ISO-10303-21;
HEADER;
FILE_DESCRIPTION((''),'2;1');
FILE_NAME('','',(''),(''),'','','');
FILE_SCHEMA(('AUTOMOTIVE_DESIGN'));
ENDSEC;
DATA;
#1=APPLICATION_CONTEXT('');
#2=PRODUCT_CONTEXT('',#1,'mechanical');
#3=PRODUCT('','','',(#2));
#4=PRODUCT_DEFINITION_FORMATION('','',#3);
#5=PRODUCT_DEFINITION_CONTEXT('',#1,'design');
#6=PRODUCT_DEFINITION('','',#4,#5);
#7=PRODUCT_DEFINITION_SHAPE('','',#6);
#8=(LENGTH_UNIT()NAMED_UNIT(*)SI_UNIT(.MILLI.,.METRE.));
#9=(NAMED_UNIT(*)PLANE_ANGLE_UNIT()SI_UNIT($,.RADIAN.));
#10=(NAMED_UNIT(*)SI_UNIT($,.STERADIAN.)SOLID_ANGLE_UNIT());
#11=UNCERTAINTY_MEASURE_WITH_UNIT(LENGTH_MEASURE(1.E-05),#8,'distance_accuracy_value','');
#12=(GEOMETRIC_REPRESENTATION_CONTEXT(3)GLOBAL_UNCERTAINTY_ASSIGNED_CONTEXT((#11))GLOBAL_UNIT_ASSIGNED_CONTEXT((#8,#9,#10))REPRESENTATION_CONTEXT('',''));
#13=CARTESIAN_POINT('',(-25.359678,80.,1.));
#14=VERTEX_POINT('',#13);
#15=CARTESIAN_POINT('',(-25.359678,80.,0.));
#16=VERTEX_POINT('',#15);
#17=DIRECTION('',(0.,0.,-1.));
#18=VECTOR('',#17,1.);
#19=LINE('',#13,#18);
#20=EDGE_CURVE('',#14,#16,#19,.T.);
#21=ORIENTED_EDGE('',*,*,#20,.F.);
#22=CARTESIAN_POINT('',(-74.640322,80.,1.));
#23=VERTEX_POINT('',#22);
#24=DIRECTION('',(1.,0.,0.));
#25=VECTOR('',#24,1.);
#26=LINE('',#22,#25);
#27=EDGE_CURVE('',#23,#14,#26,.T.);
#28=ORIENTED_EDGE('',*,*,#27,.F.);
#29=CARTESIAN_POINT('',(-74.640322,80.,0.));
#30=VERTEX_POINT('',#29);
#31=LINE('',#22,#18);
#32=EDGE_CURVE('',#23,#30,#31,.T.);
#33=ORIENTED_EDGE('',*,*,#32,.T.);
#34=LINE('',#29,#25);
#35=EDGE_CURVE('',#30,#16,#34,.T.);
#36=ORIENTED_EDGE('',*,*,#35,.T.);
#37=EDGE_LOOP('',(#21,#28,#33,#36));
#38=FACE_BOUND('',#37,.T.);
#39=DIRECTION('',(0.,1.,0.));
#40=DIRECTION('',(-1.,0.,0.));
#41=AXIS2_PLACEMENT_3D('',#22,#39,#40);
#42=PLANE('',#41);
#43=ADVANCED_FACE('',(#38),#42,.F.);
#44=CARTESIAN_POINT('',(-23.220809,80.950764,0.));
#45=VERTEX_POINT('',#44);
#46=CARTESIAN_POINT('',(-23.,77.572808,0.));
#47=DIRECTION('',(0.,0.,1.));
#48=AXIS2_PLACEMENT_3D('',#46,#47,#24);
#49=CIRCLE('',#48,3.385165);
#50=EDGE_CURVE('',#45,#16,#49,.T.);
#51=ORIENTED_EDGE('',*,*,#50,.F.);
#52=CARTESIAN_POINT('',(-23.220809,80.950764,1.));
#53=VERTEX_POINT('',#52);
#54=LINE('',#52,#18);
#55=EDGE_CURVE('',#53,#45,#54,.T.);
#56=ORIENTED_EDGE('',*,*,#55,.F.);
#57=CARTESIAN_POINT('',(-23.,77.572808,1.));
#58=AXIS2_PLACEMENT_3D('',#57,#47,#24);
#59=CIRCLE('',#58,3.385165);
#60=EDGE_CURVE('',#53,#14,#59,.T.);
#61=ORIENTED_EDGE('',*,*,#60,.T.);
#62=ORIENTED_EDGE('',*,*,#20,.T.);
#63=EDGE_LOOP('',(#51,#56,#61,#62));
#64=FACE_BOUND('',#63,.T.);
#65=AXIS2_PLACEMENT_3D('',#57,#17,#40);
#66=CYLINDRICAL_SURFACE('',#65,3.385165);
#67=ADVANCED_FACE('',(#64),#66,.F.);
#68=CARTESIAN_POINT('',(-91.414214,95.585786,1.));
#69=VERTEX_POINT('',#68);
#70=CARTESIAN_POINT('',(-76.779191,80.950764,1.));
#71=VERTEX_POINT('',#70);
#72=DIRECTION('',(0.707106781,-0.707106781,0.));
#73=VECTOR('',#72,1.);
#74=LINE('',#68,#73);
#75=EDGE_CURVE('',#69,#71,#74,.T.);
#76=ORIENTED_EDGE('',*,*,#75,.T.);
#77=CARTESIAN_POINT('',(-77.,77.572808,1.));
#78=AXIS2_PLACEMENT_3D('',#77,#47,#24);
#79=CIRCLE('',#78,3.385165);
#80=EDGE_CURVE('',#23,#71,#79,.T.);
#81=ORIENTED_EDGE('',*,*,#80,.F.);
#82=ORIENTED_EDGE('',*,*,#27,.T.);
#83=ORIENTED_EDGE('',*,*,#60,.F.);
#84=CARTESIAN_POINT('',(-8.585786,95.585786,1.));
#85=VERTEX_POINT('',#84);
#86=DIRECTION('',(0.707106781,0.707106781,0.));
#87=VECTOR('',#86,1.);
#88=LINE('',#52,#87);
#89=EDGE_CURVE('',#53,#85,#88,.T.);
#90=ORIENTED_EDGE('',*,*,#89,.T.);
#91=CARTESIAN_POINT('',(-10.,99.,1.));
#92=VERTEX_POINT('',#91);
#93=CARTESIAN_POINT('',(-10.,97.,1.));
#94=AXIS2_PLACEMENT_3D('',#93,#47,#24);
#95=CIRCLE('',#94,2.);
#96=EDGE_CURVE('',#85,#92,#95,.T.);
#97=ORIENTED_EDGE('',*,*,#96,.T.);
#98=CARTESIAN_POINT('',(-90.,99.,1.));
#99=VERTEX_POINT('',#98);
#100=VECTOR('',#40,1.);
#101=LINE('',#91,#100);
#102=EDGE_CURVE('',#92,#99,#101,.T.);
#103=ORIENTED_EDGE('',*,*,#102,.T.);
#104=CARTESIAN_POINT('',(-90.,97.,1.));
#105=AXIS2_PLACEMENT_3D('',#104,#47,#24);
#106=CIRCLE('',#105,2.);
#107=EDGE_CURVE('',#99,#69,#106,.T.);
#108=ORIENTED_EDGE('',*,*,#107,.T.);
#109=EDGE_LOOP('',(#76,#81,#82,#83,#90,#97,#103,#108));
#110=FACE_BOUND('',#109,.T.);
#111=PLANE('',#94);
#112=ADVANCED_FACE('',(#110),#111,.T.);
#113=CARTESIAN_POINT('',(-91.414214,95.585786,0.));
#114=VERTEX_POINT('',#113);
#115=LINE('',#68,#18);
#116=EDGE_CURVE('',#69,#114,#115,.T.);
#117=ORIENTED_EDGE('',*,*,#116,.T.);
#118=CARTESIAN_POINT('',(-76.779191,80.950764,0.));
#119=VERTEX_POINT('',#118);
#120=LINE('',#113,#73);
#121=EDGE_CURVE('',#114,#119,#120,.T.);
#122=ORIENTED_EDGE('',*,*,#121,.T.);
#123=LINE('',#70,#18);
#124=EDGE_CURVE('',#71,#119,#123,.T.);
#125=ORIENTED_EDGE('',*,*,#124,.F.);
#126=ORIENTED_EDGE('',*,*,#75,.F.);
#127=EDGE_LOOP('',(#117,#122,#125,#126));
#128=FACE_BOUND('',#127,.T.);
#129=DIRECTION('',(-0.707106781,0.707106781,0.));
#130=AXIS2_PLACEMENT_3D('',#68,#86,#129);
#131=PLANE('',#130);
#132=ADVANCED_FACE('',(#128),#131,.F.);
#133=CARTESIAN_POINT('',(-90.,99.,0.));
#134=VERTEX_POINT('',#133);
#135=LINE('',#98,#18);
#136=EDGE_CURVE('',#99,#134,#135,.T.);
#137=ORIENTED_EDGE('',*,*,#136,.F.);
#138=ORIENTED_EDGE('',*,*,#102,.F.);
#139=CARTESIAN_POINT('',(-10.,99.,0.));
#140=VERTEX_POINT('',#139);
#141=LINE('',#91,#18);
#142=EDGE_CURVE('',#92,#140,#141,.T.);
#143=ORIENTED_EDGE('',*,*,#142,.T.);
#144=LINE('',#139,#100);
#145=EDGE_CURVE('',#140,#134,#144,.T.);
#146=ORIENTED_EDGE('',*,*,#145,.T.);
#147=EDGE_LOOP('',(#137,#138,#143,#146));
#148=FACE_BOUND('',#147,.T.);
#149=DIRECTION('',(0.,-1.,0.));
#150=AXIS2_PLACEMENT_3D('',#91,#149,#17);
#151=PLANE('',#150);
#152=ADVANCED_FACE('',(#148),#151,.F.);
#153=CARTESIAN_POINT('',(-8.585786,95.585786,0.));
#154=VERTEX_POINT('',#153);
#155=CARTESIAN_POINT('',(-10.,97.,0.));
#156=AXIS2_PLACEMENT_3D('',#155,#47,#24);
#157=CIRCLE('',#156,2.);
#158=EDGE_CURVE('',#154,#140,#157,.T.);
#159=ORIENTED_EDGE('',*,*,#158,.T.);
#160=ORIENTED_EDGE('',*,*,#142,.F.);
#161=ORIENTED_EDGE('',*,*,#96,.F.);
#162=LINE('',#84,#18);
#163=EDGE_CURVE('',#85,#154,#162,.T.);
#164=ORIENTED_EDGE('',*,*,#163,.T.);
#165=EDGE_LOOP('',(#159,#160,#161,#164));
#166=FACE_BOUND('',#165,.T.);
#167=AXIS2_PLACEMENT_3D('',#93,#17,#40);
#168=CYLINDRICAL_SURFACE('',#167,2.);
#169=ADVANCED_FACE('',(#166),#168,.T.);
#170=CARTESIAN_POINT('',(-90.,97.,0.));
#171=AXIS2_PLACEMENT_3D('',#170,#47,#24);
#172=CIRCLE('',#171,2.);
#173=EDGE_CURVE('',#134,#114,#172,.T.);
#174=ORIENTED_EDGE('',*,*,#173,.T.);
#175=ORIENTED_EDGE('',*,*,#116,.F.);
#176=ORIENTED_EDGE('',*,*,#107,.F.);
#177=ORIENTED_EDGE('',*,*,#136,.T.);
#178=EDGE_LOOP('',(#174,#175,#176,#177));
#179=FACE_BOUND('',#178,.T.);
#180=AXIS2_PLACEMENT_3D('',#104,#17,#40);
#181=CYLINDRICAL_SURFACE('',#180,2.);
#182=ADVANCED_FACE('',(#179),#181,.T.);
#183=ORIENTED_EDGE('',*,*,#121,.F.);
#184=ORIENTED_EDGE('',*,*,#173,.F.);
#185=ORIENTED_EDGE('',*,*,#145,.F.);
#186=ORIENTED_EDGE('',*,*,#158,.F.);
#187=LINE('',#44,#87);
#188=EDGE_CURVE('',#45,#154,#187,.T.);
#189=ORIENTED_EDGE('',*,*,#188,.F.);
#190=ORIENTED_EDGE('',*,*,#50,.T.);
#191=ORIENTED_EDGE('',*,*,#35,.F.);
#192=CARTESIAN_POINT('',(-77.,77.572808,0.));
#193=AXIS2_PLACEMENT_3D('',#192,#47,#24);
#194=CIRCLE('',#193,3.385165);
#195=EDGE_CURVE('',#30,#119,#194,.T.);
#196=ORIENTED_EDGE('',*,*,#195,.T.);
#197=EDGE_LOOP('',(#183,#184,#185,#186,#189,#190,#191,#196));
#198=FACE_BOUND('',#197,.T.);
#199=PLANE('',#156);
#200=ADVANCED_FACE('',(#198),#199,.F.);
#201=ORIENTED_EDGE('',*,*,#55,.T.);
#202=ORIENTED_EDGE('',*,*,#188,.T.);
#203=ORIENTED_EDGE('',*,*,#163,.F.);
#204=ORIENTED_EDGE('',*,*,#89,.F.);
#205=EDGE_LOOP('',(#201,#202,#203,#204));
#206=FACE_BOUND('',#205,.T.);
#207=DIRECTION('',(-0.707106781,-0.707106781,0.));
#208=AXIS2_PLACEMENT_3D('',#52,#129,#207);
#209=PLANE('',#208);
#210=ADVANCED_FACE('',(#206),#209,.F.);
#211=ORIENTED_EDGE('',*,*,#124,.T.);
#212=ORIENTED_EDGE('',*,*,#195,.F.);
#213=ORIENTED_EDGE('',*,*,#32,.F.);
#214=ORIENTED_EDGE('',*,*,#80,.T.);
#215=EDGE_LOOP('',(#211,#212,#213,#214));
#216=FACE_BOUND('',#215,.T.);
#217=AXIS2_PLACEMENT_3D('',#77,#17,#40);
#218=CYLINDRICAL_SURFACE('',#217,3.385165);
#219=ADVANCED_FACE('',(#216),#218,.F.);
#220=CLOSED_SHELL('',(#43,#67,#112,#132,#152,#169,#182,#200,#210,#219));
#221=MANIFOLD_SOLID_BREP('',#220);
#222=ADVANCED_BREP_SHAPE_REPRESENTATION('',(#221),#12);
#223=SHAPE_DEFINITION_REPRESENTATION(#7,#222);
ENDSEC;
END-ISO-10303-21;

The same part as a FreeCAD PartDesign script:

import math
import FreeCAD as App
import Part
import Sketcher
from FreeCAD import Vector

doc = App.newDocument("Part")
body = doc.addObject("PartDesign::Body", "Body")

# Sketch on XY plane
sketch1 = body.newObject("Sketcher::SketchObject", "Sketch")
sketch1.AttachmentSupport = (doc.getObject("XY_Plane"), [""])
sketch1.MapMode = "FlatFace"
sketch1.addGeometry(Part.LineSegment(Vector(-10, 99, 0), Vector(-90, 99, 0)), False)
sketch1.addGeometry(Part.ArcOfCircle(Part.Circle(Vector(-90, 97, 0), Vector(0, 0, 1), 2), math.radians(90), math.radians(225)), False)
sketch1.addGeometry(Part.LineSegment(Vector(-91.4, 95.6, 0), Vector(-76.8, 81, 0)), False)
sketch1.addGeometry(Part.ArcOfCircle(Part.Circle(Vector(-77, 77.6, 0), Vector(0, 0, 1), 3.4), math.radians(46), math.radians(86)), False)
sketch1.addGeometry(Part.LineSegment(Vector(-74.6, 80, 0), Vector(-25.4, 80, 0)), False)
sketch1.addGeometry(Part.ArcOfCircle(Part.Circle(Vector(-23, 77.6, 0), Vector(0, 0, 1), 3.4), math.radians(94), math.radians(134)), False)
sketch1.addGeometry(Part.LineSegment(Vector(-23.2, 81, 0), Vector(-8.6, 95.6, 0)), False)
sketch1.addGeometry(Part.ArcOfCircle(Part.Circle(Vector(-10, 97, 0), Vector(0, 0, 1), 2), math.radians(-45), math.radians(90)), False)
sketch1.addConstraint(Sketcher.Constraint("Tangent", 0, 2, 1, 1))
sketch1.addConstraint(Sketcher.Constraint("Tangent", 1, 2, 2, 1))
sketch1.addConstraint(Sketcher.Constraint("Coincident", 2, 2, 3, 2))
sketch1.addConstraint(Sketcher.Constraint("Coincident", 3, 1, 4, 1))
sketch1.addConstraint(Sketcher.Constraint("Coincident", 4, 2, 5, 2))
sketch1.addConstraint(Sketcher.Constraint("Coincident", 5, 1, 6, 1))
sketch1.addConstraint(Sketcher.Constraint("Tangent", 6, 2, 7, 1))
sketch1.addConstraint(Sketcher.Constraint("Tangent", 7, 2, 0, 1))
sketch1.addConstraint(Sketcher.Constraint("Horizontal", 0))
sketch1.addConstraint(Sketcher.Constraint("Horizontal", 4))
sketch1.addConstraint(Sketcher.Constraint("Equal", 3, 5))
sketch1.addConstraint(Sketcher.Constraint("Equal", 1, 7))
sketch1.addConstraint(Sketcher.Constraint("Perpendicular", 2, 6))
sketch1.addConstraint(Sketcher.Constraint("Horizontal", 3, 3, 5, 3))
sketch1.addConstraint(Sketcher.Constraint("Horizontal", 2, 2, 5, 1))
sketch1.addConstraint(Sketcher.Constraint("Horizontal", 1, 2, 6, 2))
sketch1.addConstraint(Sketcher.Constraint("Radius", 1, 2.0))
sketch1.addConstraint(Sketcher.Constraint("DistanceX", 0, 2, 0, 1, 80.0))
sketch1.addConstraint(Sketcher.Constraint("DistanceX", 1, 3, -1, 1, 90.0))
sketch1.addConstraint(Sketcher.Constraint("DistanceY", -1, 1, 1, 3, 97.0))
sketch1.addConstraint(Sketcher.Constraint("DistanceX", 3, 3, -1, 1, 77.0))
sketch1.addConstraint(Sketcher.Constraint("DistanceY", -1, 1, 3, 1, 80.0))
sketch1.addConstraint(Sketcher.Constraint("Radius", 3, 3.385165))
sketch1.addConstraint(Sketcher.Constraint("DistanceX", 4, 1, 4, 2, 49.280644))
pad1 = body.newObject("PartDesign::Pad", "Pad")
pad1.Profile = sketch1
pad1.Length = 1

doc.recompute()
